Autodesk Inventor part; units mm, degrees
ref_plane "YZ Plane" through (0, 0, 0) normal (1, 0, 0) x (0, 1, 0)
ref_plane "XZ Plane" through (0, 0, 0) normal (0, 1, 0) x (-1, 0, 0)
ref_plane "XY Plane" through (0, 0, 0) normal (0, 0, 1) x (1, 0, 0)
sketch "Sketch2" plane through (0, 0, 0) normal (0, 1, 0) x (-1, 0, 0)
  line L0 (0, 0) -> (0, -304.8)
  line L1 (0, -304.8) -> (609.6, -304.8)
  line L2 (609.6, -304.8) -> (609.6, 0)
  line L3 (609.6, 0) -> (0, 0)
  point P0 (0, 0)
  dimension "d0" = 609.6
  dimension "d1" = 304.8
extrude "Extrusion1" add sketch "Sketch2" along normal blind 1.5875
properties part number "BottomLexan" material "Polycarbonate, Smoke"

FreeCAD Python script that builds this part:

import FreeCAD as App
import Part
import Sketcher

V = App.Vector
Q = App.Units.Quantity

doc = App.newDocument("Part")
body = doc.addObject("PartDesign::Body", "Body")

# Sketch on XZ plane
sketch1 = doc.addObject("Sketcher::SketchObject", "Sketch")
body.addObject(sketch1)
sketch1.AttachmentSupport = (doc.XZ_Plane, [""])
sketch1.MapMode = "FlatFace"
sketch1.addGeometry(Part.LineSegment(V(-609.6, 0, 0), V(0, 0, 0)), False)
sketch1.addGeometry(Part.LineSegment(V(0, 0, 0), V(0, -304.8, 0)), False)
sketch1.addGeometry(Part.LineSegment(V(0, -304.8, 0), V(-609.6, -304.8, 0)), False)
sketch1.addGeometry(Part.LineSegment(V(-609.6, -304.8, 0), V(-609.6, 0, 0)), False)
sketch1.addConstraint(Sketcher.Constraint("Coincident", 0, 2, 1, 1))
sketch1.addConstraint(Sketcher.Constraint("Coincident", 1, 2, 2, 1))
sketch1.addConstraint(Sketcher.Constraint("Coincident", 2, 2, 3, 1))
sketch1.addConstraint(Sketcher.Constraint("Coincident", 3, 2, 0, 1))
sketch1.addConstraint(Sketcher.Constraint("Horizontal", 0))
sketch1.addConstraint(Sketcher.Constraint("Vertical", 1))
sketch1.addConstraint(Sketcher.Constraint("Horizontal", 2))
sketch1.addConstraint(Sketcher.Constraint("Vertical", 3))
sketch1.addConstraint(Sketcher.Constraint("Coincident", 0, 2, -1, 1))
sketch1.addConstraint(Sketcher.Constraint("DistanceX", 0, 1, 0, 2, Q("24 in")))
sketch1.addConstraint(Sketcher.Constraint("DistanceY", 1, 2, 1, 1, Q("12 in")))
pad1 = doc.addObject("PartDesign::Pad", "Pad")
body.addObject(pad1)
pad1.Profile = sketch1
pad1.Length = Q("0.0625 in")
pad1.Reversed = True

doc.recompute()
